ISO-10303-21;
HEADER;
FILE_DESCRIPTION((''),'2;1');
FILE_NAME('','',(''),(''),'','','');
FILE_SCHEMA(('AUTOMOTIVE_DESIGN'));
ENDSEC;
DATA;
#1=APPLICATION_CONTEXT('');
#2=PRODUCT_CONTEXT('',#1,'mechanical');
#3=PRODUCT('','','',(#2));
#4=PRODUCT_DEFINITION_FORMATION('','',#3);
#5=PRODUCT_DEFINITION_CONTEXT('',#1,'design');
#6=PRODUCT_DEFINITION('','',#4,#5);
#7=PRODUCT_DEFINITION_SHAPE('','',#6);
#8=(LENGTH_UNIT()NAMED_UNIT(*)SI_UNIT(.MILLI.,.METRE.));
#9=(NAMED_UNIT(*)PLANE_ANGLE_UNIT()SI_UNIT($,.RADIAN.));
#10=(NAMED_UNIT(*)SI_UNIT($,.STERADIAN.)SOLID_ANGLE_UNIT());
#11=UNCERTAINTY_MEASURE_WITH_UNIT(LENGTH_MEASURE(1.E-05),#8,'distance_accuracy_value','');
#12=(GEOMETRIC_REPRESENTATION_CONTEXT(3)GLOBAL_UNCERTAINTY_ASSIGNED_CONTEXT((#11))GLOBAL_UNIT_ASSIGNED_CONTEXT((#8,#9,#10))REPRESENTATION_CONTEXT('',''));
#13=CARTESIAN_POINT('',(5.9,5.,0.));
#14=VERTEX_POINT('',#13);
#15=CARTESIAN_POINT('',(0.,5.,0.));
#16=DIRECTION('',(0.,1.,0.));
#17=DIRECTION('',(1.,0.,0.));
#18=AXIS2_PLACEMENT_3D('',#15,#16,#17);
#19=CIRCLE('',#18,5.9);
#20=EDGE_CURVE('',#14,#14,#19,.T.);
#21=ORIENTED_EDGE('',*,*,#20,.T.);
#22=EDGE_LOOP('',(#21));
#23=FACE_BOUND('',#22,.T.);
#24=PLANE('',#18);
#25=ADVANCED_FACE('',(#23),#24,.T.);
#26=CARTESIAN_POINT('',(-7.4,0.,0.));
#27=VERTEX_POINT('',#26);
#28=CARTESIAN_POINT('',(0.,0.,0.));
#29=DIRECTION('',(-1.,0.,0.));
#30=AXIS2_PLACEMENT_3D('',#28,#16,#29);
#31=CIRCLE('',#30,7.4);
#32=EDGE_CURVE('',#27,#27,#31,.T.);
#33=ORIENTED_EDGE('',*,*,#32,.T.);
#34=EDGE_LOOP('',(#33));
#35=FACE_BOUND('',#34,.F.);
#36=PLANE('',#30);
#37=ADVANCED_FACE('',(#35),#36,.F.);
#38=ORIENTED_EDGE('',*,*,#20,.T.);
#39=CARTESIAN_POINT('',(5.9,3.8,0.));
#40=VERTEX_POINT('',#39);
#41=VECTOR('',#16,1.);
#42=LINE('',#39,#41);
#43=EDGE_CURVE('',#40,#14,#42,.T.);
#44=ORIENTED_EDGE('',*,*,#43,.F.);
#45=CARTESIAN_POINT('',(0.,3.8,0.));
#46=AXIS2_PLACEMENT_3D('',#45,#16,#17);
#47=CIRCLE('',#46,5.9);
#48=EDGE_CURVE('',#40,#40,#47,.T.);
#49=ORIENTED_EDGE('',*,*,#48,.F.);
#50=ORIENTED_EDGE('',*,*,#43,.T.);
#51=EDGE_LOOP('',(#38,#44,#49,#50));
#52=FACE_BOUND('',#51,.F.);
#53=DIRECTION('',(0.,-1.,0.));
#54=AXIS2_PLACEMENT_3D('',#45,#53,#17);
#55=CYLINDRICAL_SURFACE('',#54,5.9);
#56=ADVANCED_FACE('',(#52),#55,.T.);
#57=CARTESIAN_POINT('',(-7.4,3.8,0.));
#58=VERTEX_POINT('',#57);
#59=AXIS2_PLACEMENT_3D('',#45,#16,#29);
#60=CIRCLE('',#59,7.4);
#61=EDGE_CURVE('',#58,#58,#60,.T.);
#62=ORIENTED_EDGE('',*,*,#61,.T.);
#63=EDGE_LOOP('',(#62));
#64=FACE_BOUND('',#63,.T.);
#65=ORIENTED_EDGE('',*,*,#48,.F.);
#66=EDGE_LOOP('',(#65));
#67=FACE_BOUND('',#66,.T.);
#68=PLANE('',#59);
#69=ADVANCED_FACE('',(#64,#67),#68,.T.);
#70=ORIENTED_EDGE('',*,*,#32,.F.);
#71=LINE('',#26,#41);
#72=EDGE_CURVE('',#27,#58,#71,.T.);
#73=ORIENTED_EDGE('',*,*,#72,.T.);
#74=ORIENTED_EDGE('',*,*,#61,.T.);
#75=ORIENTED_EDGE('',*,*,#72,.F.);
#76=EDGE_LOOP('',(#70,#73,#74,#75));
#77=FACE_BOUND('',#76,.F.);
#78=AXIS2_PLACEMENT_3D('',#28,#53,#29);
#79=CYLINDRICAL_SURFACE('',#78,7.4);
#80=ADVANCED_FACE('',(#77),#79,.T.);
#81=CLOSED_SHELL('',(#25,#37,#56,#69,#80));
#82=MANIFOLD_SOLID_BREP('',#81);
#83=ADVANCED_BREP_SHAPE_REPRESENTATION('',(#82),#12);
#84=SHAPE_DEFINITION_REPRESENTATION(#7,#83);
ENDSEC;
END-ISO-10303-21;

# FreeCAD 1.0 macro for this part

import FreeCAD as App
import Part
import Sketcher
from FreeCAD import Vector

doc = App.newDocument("Part")
body = doc.addObject("PartDesign::Body", "Body")

# Sketch on XZ plane
sketch1 = body.newObject("Sketcher::SketchObject", "Sketch")
sketch1.AttachmentSupport = (doc.getObject("XZ_Plane"), [""])
sketch1.MapMode = "FlatFace"
sketch1.addGeometry(Part.Circle(Vector(0, 0, 0), Vector(0, 0, 1), 7.4), False)
sketch1.addConstraint([
    Sketcher.Constraint("Coincident", 0, 3, -1, 1),
    Sketcher.Constraint("Diameter", 0, 14.8),
])
pad1 = body.newObject("PartDesign::Pad", "Pad")
pad1.Profile = sketch1
pad1.Length = 3.8
pad1.Reversed = True

# Sketch on XZ plane
sketch2 = body.newObject("Sketcher::SketchObject", "Sketch001")
sketch2.AttachmentSupport = (doc.getObject("XZ_Plane"), [""])
sketch2.MapMode = "FlatFace"
sketch2.AttachmentOffset = App.Placement(Vector(0, 0, -3.8), App.Rotation())
sketch2.addGeometry(Part.Circle(Vector(0, 0, 0), Vector(0, 0, 1), 5.9), False)
sketch2.addConstraint([
    Sketcher.Constraint("Coincident", 0, 3, -1, 1),
    Sketcher.Constraint("Diameter", 0, 11.8),
])
pad2 = body.newObject("PartDesign::Pad", "Pad001")
pad2.Profile = sketch2
pad2.Length = 1.2
pad2.Reversed = True

doc.recompute()
